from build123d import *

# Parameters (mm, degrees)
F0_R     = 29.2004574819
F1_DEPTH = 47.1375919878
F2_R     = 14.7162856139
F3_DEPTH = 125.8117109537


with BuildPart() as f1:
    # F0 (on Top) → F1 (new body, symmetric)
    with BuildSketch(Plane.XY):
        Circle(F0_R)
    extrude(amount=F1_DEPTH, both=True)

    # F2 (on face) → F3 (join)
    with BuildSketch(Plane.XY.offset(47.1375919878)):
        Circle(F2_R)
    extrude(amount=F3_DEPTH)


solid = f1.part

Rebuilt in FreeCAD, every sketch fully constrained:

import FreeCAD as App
import Part
import Sketcher
from FreeCAD import Vector
Q = App.Units.Quantity

doc = App.newDocument("Part")
body = doc.addObject("PartDesign::Body", "Body")

sketch1 = doc.addObject("Sketcher::SketchObject", "Sketch")
body.addObject(sketch1)
sketch1.AttachmentSupport = (doc.XY_Plane, [""])
sketch1.MapMode = "FlatFace"
sketch1.addGeometry(Part.Circle(Vector(0, 0, 0), Vector(0, 0, 1), 29), False)
sketch1.addConstraint([
    Sketcher.Constraint("Coincident", 0, 3, -1, 1),
    Sketcher.Constraint("Diameter", 0, Q("58.400915 mm")),
])
pad1 = doc.addObject("PartDesign::Pad", "Pad")
body.addObject(pad1)
pad1.Profile = sketch1
pad1.Length = 94.275184
pad1.Midplane = True

sketch2 = doc.addObject("Sketcher::SketchObject", "Sketch001")
body.addObject(sketch2)
sketch2.AttachmentSupport = (doc.XY_Plane, [""])
sketch2.MapMode = "FlatFace"
sketch2.AttachmentOffset = App.Placement(Vector(0, 0, 47.137592), App.Rotation())
sketch2.addGeometry(Part.Circle(Vector(0, 0, 0), Vector(0, 0, 1), 15), False)
sketch2.addConstraint([
    Sketcher.Constraint("Coincident", 0, 3, -1, 1),
    Sketcher.Constraint("Diameter", 0, Q("29.432571 mm")),
])
pad2 = doc.addObject("PartDesign::Pad", "Pad001")
body.addObject(pad2)
pad2.Profile = sketch2
pad2.Length = 125.811711

doc.recompute()
